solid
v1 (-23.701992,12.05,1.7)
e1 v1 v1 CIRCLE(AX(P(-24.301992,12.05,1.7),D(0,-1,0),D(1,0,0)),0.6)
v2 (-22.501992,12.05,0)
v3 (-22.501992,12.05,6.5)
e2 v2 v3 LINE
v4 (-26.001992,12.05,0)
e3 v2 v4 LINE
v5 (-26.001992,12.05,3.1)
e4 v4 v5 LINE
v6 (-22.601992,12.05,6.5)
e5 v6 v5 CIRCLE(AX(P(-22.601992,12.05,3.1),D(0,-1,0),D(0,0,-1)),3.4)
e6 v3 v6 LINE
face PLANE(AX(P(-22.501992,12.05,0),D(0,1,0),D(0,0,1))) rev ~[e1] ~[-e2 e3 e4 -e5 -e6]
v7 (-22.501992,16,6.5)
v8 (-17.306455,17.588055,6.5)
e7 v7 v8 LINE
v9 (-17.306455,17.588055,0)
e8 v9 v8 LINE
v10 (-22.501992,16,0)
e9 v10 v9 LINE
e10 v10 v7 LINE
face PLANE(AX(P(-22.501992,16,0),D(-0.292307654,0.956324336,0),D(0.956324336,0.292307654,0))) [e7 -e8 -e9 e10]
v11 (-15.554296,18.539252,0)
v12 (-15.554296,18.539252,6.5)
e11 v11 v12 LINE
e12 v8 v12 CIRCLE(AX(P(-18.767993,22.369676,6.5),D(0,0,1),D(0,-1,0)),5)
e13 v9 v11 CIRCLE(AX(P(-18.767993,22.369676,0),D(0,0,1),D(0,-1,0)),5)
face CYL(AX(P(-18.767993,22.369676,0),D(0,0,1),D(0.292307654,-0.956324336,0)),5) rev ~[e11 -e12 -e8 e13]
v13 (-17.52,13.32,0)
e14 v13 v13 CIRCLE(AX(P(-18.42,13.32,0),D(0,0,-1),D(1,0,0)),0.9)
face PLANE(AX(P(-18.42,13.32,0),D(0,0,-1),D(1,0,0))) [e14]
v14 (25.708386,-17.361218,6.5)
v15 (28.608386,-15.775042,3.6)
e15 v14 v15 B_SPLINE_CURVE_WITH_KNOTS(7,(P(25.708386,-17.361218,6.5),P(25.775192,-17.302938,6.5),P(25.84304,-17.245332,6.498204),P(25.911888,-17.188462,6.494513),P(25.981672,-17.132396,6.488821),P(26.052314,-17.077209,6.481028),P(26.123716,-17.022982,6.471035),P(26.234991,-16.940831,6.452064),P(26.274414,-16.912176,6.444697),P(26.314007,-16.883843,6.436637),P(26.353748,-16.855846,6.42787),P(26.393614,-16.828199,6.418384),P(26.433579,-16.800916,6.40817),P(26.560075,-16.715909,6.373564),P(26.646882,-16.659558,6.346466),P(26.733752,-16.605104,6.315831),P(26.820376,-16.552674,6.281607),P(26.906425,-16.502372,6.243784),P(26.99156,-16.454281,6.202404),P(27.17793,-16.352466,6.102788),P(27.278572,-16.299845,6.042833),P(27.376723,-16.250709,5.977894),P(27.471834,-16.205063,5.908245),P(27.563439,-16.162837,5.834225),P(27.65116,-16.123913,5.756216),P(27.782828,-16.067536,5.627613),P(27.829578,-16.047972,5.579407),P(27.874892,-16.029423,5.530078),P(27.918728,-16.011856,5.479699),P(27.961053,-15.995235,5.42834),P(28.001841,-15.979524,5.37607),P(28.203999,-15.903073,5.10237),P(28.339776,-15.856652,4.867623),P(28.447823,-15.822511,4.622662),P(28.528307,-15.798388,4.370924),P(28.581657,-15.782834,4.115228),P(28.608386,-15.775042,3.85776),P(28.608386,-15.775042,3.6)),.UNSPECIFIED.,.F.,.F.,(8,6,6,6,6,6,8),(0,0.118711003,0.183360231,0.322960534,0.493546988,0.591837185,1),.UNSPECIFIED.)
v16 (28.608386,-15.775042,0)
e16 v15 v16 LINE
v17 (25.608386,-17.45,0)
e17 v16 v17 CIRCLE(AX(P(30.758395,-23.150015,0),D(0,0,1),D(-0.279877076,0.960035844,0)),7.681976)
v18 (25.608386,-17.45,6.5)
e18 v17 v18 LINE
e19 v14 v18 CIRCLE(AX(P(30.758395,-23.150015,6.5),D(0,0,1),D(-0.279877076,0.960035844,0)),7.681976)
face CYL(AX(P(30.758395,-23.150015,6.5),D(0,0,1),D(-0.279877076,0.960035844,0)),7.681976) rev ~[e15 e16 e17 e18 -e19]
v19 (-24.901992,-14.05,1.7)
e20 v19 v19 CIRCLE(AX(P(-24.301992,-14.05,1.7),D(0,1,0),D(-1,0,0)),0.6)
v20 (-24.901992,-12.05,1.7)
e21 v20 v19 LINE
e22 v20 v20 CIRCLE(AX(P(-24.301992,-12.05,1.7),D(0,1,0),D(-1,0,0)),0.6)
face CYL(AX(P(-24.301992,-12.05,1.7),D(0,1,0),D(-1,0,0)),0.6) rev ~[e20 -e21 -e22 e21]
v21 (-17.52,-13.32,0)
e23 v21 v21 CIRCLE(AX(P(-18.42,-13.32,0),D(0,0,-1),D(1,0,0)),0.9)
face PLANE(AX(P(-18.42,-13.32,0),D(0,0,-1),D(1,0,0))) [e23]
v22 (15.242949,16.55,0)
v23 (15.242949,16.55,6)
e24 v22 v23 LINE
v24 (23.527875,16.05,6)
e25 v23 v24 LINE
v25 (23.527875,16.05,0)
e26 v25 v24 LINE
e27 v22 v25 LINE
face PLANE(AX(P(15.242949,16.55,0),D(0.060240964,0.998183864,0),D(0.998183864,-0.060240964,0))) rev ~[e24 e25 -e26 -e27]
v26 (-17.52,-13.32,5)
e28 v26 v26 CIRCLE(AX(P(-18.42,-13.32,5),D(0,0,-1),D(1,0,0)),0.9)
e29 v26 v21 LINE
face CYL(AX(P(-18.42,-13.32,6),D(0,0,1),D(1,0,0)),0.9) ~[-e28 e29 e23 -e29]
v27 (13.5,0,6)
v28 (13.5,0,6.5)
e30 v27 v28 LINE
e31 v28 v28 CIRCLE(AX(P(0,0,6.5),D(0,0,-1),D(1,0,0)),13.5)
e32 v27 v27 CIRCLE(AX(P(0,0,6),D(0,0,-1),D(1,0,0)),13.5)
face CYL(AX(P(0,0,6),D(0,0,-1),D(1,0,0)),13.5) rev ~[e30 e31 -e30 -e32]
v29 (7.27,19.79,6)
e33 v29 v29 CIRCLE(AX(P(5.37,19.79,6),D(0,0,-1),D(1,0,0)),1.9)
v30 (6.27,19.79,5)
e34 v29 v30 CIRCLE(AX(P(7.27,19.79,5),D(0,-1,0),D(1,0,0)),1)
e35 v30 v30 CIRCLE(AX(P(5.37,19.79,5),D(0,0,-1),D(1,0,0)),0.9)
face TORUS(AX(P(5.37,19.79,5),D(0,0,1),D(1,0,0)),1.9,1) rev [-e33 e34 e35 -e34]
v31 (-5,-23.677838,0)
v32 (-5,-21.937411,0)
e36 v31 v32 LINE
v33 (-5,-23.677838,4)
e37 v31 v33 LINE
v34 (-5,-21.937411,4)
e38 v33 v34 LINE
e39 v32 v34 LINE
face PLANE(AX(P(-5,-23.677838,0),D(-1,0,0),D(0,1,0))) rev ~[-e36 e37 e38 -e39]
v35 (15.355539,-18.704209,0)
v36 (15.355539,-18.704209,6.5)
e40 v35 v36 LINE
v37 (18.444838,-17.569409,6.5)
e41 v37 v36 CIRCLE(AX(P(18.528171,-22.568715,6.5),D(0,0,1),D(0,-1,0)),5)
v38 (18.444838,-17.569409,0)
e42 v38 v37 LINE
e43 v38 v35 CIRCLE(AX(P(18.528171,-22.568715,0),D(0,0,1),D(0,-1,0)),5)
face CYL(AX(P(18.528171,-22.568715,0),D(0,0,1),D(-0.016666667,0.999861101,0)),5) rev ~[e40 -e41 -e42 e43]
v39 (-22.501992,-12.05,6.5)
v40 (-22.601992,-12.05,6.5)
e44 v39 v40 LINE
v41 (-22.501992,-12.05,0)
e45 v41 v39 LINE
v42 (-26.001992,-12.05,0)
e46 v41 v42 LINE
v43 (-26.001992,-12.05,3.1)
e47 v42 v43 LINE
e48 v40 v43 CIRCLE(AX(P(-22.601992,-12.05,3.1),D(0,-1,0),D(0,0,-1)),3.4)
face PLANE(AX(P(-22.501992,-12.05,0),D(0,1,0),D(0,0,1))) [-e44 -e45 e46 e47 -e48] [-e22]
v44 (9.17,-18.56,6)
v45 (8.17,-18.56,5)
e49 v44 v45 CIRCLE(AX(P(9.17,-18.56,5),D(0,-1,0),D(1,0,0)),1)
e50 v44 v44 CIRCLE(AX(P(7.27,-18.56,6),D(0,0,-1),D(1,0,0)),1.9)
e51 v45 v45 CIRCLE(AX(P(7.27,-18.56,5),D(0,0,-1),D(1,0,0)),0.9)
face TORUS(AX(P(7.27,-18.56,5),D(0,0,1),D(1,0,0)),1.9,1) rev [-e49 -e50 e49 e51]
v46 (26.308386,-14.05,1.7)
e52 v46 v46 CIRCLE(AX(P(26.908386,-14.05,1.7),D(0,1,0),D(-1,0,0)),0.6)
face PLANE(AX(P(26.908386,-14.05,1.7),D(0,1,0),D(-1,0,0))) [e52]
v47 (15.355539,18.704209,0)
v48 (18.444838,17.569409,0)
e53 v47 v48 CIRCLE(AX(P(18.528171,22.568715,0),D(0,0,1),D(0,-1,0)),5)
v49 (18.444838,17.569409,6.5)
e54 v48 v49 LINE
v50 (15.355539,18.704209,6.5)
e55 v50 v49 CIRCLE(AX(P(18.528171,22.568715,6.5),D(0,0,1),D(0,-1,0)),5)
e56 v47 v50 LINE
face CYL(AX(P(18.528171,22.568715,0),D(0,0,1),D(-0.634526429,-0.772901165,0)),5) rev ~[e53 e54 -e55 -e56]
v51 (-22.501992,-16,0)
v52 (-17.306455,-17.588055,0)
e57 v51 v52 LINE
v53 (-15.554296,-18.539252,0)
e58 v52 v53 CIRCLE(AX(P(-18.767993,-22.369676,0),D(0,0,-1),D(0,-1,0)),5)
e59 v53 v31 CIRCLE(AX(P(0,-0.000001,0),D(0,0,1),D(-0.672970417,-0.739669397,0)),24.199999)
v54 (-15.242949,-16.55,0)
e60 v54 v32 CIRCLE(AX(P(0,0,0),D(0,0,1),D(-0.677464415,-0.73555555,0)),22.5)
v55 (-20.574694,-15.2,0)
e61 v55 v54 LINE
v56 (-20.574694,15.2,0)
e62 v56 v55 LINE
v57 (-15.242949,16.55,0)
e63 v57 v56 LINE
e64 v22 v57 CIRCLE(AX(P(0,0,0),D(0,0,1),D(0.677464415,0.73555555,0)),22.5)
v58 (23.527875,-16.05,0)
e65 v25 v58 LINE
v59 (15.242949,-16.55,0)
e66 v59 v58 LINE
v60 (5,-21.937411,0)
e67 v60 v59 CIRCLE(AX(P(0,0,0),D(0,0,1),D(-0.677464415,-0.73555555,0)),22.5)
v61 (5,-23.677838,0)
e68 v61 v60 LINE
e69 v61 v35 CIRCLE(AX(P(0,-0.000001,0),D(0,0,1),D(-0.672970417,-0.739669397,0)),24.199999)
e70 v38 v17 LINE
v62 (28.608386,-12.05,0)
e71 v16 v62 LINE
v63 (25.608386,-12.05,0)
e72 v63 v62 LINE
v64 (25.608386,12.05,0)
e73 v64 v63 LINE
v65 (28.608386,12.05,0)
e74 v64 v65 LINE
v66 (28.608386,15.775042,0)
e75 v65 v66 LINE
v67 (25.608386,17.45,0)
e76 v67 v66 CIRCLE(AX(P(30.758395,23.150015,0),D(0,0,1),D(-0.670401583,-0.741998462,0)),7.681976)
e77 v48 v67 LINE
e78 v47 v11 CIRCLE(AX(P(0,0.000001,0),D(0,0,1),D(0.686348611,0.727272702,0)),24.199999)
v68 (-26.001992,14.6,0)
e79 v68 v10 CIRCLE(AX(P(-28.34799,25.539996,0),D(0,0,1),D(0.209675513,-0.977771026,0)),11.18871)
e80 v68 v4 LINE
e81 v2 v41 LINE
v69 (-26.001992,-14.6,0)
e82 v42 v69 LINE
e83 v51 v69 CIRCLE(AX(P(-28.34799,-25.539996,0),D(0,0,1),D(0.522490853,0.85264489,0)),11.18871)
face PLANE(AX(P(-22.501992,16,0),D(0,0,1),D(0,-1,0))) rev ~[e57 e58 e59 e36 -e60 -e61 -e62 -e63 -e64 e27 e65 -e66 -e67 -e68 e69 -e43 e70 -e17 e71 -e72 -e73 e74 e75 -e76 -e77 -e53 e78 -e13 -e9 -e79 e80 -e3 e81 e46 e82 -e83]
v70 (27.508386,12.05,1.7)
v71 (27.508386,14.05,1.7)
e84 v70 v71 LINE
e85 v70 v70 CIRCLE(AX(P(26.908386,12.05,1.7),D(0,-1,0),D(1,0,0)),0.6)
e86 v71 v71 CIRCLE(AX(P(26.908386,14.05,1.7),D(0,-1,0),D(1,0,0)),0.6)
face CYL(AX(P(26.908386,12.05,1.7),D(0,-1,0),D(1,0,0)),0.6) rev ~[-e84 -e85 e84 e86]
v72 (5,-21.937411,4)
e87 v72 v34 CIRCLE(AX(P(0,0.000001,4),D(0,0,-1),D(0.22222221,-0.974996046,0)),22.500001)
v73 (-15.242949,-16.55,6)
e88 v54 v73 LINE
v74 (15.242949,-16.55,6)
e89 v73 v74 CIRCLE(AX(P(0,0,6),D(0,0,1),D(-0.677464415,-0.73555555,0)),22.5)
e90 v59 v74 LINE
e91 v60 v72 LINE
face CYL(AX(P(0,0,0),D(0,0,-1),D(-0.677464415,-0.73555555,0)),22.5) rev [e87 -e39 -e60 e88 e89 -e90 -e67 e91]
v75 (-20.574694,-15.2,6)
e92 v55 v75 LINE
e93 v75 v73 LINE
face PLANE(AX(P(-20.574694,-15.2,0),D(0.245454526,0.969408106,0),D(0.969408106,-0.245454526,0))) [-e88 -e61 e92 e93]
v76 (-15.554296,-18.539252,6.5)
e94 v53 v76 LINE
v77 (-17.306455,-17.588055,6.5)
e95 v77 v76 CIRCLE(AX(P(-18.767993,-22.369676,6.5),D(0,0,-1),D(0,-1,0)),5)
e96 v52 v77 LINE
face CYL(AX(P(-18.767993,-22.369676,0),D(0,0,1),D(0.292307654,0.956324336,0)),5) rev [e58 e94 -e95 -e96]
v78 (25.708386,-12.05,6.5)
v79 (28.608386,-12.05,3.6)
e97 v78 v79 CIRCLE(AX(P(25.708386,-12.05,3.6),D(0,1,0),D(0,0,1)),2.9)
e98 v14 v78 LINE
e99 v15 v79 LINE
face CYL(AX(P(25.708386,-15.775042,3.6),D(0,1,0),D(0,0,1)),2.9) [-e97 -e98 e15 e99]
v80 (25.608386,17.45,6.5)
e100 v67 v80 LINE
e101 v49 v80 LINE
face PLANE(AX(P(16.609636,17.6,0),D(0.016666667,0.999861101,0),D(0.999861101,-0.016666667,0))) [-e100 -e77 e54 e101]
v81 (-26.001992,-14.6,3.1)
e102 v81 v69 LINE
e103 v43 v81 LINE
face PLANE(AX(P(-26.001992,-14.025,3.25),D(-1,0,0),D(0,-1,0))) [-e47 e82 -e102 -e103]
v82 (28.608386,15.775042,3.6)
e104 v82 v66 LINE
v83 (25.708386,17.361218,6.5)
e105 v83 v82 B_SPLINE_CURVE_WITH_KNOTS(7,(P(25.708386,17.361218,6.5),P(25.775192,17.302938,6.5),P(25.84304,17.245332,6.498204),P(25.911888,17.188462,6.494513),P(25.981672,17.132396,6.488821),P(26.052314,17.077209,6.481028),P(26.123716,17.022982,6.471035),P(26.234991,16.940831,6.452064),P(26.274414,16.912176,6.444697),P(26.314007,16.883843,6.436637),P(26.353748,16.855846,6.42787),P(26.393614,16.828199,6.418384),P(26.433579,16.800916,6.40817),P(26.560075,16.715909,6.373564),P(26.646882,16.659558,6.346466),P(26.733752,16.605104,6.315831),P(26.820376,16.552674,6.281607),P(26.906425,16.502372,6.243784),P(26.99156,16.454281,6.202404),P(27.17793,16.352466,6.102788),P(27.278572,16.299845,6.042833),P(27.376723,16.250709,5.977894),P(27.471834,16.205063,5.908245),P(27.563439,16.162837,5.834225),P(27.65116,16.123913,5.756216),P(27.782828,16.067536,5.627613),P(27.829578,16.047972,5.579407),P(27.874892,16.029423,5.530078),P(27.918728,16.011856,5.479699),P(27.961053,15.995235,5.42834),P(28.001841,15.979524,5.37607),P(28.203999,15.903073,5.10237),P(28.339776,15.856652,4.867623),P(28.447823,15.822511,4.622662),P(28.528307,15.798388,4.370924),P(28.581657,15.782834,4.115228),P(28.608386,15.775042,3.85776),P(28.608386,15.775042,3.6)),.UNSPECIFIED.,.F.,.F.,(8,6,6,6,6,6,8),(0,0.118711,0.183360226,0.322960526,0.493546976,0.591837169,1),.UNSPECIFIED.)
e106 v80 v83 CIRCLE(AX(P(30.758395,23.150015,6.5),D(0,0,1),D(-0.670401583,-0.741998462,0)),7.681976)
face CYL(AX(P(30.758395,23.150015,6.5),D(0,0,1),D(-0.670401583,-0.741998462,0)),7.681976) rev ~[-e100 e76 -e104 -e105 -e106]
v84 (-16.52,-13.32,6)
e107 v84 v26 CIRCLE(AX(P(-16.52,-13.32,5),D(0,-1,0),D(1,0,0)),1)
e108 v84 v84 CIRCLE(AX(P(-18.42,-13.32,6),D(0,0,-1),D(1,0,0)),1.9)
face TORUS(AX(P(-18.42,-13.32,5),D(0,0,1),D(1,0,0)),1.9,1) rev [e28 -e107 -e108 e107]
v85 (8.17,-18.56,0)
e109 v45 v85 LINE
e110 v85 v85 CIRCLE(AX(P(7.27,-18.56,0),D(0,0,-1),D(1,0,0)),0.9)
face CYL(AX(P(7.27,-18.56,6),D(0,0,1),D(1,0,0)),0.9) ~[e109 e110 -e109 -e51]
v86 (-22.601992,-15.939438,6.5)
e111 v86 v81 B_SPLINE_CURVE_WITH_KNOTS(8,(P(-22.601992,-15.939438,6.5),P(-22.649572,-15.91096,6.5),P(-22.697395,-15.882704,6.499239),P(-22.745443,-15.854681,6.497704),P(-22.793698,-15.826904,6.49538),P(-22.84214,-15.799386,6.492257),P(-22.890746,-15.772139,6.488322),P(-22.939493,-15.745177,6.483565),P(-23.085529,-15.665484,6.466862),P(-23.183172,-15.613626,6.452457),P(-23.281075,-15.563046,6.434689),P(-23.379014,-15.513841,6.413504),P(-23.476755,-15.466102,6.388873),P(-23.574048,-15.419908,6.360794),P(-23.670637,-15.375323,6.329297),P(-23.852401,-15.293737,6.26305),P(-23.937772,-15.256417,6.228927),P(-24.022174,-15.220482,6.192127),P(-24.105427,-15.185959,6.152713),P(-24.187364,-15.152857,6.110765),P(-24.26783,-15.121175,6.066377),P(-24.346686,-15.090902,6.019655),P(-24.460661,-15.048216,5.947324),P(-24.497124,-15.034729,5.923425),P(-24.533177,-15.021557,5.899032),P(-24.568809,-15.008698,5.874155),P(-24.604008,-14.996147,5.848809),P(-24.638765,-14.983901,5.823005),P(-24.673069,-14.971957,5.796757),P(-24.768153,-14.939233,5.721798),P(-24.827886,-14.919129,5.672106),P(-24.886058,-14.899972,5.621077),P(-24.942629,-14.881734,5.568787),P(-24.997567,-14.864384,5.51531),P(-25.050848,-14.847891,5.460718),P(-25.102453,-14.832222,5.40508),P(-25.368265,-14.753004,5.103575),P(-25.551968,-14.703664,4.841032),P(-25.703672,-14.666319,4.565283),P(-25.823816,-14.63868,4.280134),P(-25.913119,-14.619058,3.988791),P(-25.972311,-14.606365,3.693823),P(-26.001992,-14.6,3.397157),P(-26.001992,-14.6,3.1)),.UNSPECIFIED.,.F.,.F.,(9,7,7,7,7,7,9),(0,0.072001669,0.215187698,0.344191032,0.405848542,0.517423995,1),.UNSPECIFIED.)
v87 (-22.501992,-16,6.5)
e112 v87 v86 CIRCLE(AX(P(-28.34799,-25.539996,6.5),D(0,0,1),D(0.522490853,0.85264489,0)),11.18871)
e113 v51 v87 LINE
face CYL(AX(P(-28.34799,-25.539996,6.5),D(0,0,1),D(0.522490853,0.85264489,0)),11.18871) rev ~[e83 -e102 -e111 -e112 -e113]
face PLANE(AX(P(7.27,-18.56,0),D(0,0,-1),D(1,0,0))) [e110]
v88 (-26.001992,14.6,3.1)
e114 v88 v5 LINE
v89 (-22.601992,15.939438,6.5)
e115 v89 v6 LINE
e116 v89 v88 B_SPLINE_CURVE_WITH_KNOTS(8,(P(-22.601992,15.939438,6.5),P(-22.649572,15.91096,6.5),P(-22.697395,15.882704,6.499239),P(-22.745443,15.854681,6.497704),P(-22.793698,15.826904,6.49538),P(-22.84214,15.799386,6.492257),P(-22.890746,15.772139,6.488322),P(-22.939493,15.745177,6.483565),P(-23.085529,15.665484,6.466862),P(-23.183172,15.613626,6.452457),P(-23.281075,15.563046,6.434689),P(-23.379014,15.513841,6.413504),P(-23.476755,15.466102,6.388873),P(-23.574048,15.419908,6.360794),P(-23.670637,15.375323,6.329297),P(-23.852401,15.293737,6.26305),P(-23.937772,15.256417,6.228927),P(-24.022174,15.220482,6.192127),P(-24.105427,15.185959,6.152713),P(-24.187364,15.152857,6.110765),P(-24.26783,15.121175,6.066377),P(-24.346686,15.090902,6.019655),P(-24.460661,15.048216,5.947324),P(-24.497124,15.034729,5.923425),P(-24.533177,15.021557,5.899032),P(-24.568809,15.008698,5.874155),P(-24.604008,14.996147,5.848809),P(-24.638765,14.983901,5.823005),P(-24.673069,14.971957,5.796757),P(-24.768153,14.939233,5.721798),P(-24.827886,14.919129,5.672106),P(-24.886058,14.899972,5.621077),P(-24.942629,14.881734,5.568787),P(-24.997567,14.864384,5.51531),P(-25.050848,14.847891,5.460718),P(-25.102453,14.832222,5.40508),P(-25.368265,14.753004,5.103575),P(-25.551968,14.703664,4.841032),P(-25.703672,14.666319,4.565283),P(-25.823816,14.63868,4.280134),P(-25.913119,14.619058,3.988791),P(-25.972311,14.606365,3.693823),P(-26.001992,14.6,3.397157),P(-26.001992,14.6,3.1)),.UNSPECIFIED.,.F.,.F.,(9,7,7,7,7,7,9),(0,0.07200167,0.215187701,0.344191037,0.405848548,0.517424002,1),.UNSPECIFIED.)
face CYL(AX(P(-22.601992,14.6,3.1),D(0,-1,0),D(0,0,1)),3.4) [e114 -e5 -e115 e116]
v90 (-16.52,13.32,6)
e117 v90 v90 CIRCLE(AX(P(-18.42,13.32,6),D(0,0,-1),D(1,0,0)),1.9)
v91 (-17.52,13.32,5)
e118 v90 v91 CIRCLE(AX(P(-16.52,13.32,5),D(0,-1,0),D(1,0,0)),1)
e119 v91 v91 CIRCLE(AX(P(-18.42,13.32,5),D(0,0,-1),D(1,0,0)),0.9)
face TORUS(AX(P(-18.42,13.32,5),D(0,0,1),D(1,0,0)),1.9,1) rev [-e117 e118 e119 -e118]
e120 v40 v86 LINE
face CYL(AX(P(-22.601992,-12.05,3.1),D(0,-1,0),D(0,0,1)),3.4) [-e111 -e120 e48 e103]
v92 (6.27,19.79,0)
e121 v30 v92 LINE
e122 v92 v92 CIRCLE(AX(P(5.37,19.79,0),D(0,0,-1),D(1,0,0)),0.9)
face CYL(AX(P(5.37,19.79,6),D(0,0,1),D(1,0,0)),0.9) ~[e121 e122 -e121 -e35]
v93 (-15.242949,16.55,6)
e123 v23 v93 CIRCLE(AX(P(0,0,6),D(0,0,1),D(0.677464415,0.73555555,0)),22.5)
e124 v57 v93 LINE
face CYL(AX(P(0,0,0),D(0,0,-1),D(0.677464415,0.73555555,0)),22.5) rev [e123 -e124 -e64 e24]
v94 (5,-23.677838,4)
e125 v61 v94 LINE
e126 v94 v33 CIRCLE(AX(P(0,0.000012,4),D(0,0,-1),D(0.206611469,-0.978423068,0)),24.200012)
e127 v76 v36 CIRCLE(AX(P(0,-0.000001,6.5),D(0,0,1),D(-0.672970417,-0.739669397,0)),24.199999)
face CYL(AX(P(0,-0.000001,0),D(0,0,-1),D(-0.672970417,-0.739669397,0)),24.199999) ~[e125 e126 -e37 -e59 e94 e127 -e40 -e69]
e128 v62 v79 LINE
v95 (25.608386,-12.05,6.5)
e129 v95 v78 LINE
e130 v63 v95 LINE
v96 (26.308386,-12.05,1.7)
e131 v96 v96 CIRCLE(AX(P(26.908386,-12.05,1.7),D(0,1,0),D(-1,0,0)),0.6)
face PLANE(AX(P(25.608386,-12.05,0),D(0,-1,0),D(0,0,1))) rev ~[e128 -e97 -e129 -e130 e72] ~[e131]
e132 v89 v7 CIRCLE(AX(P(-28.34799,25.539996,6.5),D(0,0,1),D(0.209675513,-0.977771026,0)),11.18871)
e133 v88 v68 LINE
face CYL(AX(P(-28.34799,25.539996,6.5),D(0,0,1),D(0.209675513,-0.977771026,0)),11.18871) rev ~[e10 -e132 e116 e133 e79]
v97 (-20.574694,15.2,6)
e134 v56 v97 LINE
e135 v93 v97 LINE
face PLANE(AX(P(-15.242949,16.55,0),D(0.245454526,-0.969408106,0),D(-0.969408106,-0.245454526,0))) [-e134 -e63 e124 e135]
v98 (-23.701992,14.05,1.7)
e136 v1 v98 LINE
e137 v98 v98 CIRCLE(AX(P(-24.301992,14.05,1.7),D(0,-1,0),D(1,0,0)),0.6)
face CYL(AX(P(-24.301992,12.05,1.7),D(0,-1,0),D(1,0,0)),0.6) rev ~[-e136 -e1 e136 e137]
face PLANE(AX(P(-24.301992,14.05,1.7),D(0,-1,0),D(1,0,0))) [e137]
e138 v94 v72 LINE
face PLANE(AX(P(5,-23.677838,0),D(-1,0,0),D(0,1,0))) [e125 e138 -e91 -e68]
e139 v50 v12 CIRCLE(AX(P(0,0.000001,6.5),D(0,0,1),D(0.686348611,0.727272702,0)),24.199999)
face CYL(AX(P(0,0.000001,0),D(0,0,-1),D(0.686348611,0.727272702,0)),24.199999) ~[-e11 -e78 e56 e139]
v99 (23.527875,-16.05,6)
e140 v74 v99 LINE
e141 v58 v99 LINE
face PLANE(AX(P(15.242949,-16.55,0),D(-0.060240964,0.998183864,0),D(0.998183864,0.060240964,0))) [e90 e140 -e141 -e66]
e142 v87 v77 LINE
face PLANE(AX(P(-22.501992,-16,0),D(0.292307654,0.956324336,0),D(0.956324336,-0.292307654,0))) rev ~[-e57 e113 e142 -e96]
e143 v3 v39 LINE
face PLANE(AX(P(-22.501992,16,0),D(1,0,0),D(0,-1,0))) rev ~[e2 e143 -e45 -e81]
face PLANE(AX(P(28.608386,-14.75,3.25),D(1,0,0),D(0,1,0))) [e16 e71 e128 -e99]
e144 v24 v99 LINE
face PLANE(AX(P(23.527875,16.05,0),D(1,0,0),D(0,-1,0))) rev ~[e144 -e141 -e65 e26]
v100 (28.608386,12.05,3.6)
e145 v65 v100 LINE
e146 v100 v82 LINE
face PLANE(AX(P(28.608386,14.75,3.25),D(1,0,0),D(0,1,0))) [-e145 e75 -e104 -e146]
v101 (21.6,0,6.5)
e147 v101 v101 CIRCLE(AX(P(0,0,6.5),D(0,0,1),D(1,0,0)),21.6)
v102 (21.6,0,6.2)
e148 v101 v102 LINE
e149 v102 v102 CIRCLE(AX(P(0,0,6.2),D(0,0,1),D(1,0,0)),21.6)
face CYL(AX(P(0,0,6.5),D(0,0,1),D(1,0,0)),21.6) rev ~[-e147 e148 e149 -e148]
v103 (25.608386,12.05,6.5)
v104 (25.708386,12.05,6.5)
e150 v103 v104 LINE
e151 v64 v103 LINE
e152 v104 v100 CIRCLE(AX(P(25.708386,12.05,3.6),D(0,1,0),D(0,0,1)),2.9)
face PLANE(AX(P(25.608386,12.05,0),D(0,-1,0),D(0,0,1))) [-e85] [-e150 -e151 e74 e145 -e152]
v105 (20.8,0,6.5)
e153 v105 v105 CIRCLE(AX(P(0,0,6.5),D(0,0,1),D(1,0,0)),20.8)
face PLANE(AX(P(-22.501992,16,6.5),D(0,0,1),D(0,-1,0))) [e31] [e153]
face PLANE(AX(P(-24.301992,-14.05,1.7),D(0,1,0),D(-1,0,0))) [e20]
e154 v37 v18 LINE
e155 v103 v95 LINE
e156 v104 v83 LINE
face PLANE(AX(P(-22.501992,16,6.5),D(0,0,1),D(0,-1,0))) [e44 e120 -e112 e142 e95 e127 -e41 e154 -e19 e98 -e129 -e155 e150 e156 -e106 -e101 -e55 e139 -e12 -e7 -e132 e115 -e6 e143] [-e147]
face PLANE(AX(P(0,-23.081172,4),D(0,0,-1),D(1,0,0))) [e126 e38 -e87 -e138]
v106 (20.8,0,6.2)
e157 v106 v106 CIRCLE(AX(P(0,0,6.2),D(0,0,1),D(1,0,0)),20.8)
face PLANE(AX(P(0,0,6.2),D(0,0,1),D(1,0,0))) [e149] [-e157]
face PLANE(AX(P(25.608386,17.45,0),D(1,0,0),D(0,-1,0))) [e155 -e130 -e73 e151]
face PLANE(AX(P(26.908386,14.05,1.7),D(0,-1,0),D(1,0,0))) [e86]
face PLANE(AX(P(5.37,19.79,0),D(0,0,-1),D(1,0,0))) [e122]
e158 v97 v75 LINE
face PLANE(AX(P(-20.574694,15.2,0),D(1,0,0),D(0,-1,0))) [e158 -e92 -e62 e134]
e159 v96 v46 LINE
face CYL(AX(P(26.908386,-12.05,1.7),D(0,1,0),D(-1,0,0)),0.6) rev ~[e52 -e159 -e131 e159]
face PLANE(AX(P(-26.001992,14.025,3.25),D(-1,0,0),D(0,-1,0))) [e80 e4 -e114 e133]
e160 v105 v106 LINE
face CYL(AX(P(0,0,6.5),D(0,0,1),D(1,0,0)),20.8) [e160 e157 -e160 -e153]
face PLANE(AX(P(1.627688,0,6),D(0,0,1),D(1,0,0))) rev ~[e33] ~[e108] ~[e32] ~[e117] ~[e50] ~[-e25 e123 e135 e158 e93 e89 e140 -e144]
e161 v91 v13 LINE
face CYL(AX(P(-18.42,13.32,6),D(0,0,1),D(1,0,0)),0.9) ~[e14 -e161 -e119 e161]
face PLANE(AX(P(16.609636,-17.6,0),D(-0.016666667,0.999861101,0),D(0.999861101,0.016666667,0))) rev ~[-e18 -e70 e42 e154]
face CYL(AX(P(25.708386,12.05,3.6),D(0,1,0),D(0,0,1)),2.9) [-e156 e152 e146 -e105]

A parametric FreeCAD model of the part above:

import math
import FreeCAD as App
import Part
import Sketcher


def edges_at(feature, points):
    """Names of the edges that pass closest to the given points."""
    edges = feature.Shape.Edges
    near = lambda p: min(range(len(edges)), key=lambda i: edges[i].distToShape(Part.Vertex(*p))[0])
    return sorted({f"Edge{near(p) + 1}" for p in points})

doc = App.newDocument("Part")
body = doc.addObject("PartDesign::Body", "Body")

# Sketch on XY plane
sketch1 = doc.addObject("Sketcher::SketchObject", "Sketch")
body.addObject(sketch1)
sketch1.AttachmentSupport = (doc.XY_Plane, [""])
sketch1.MapMode = "FlatFace"
sketch1.addGeometry([
    Part.LineSegment(App.Vector(-22.501992, 16, 0), App.Vector(-22.501992, -16, 0)),  # 0
    Part.LineSegment(App.Vector(-22.501992, -16, 0), App.Vector(-16.285883, -17.9, 0)),  # 1
    Part.ArcOfCircle(Part.Circle(App.Vector(0, -0.000001, 0), App.Vector(0, 0, 1), 24.199999), math.radians(-132.296739), math.radians(-46.65824)),  # 2
    Part.LineSegment(App.Vector(16.609636, -17.6, 0), App.Vector(25.608386, -17.45, 0)),  # 3
    Part.LineSegment(App.Vector(25.608386, -17.45, 0), App.Vector(25.608386, 17.45, 0)),  # 4
    Part.LineSegment(App.Vector(25.608386, 17.45, 0), App.Vector(16.609636, 17.6, 0)),  # 5
    Part.ArcOfCircle(Part.Circle(App.Vector(0, 0.000001, 0), App.Vector(0, 0, 1), 24.199999), math.radians(46.65824), math.radians(132.296739)),  # 6
    Part.LineSegment(App.Vector(-16.285883, 17.9, 0), App.Vector(-22.501992, 16, 0)),  # 7
], False)
sketch1.addConstraint([
    Sketcher.Constraint("Coincident", 0, 2, 1, 1),
    Sketcher.Constraint("Coincident", 1, 2, 2, 1),
    Sketcher.Constraint("Coincident", 2, 2, 3, 1),
    Sketcher.Constraint("Coincident", 3, 2, 4, 1),
    Sketcher.Constraint("Coincident", 4, 2, 5, 1),
    Sketcher.Constraint("Coincident", 5, 2, 6, 1),
    Sketcher.Constraint("Coincident", 6, 2, 7, 1),
    Sketcher.Constraint("Coincident", 7, 2, 0, 1),
    Sketcher.Constraint("Vertical", 0),
    Sketcher.Constraint("Vertical", 4),
    Sketcher.Constraint("Coincident", 2, 3, -1, 1),
    Sketcher.Constraint("Coincident", 6, 3, -1, 1),
    Sketcher.Constraint("Equal", 2, 6),
    Sketcher.Constraint("Vertical", 2, 2, 5, 2),
    Sketcher.Constraint("Vertical", 1, 2, 6, 2),
    Sketcher.Constraint("Equal", 3, 5),
    Sketcher.Constraint("Equal", 1, 7),
    Sketcher.Constraint("Radius", 2, 24.199999),
    Sketcher.Constraint("DistanceY", 0, 2, 0, 1, 32.0),
    Sketcher.Constraint("Distance", 3, 9.0),
    Sketcher.Constraint("DistanceY", 4, 1, 4, 2, 34.9),
    Sketcher.Constraint("Distance", 1, 6.500001),
    Sketcher.Constraint("DistanceY", 1, 2, -1, 1, 17.9),
    Sketcher.Constraint("DistanceY", 2, 2, -1, 1, 17.6),
])
pad1 = doc.addObject("PartDesign::Pad", "Pad")
body.addObject(pad1)
pad1.Profile = sketch1
pad1.Length = 6.5

# Sketch on XY plane
sketch2 = doc.addObject("Sketcher::SketchObject", "Sketch001")
body.addObject(sketch2)
sketch2.AttachmentSupport = (doc.XY_Plane, [""])
sketch2.MapMode = "FlatFace"
sketch2.addGeometry([
    Part.LineSegment(App.Vector(-15.242949, 16.55, 0), App.Vector(-20.574694, 15.2, 0)),  # 0
    Part.LineSegment(App.Vector(-20.574694, 15.2, 0), App.Vector(-20.574694, -15.2, 0)),  # 1
    Part.LineSegment(App.Vector(-20.574694, -15.2, 0), App.Vector(-15.242949, -16.55, 0)),  # 2
    Part.ArcOfCircle(Part.Circle(App.Vector(0, 0, 0), App.Vector(0, 0, 1), 22.5), math.radians(-132.64582), math.radians(-47.35418)),  # 3
    Part.LineSegment(App.Vector(15.242949, -16.55, 0), App.Vector(23.527875, -16.05, 0)),  # 4
    Part.LineSegment(App.Vector(23.527875, -16.05, 0), App.Vector(23.527875, 16.05, 0)),  # 5
    Part.LineSegment(App.Vector(23.527875, 16.05, 0), App.Vector(15.242949, 16.55, 0)),  # 6
    Part.ArcOfCircle(Part.Circle(App.Vector(0, 0, 0), App.Vector(0, 0, 1), 22.5), math.radians(47.35418), math.radians(132.64582)),  # 7
], False)
sketch2.addConstraint([
    Sketcher.Constraint("Coincident", 0, 2, 1, 1),
    Sketcher.Constraint("Coincident", 1, 2, 2, 1),
    Sketcher.Constraint("Coincident", 2, 2, 3, 1),
    Sketcher.Constraint("Coincident", 3, 2, 4, 1),
    Sketcher.Constraint("Coincident", 4, 2, 5, 1),
    Sketcher.Constraint("Coincident", 5, 2, 6, 1),
    Sketcher.Constraint("Coincident", 6, 2, 7, 1),
    Sketcher.Constraint("Coincident", 7, 2, 0, 1),
    Sketcher.Constraint("Vertical", 1),
    Sketcher.Constraint("Vertical", 5),
    Sketcher.Constraint("Coincident", 3, 3, -1, 1),
    Sketcher.Constraint("Coincident", 7, 3, -1, 1),
    Sketcher.Constraint("Equal", 3, 7),
    Sketcher.Constraint("Horizontal", 2, 2, 3, 2),
    Sketcher.Constraint("Horizontal", 6, 2, 7, 2),
    Sketcher.Constraint("Vertical", 3, 2, 6, 2),
    Sketcher.Constraint("Equal", 0, 2),
    Sketcher.Constraint("Equal", 4, 6),
    Sketcher.Constraint("Radius", 3, 22.5),
    Sketcher.Constraint("DistanceY", 1, 2, 1, 1, 30.4),
    Sketcher.Constraint("DistanceY", 5, 1, 5, 2, 32.1),
    Sketcher.Constraint("Distance", 0, 5.5),
    Sketcher.Constraint("Distance", 4, 8.3),
    Sketcher.Constraint("DistanceY", 3, 2, 4, 2, 0.5),
])
pocket1 = doc.addObject("PartDesign::Pocket", "Pocket")
body.addObject(pocket1)
pocket1.Profile = sketch2
pocket1.Length = 6
pocket1.Reversed = True

# Sketch on XY plane
sketch3 = doc.addObject("Sketcher::SketchObject", "Sketch002")
body.addObject(sketch3)
sketch3.AttachmentSupport = (doc.XY_Plane, [""])
sketch3.MapMode = "FlatFace"
sketch3.AttachmentOffset = App.Placement(App.Vector(0, 0, 6), App.Rotation())
sketch3.addGeometry(Part.Circle(App.Vector(0, 0, 0), App.Vector(0, 0, 1), 13.5), False)
sketch3.addConstraint([
    Sketcher.Constraint("Coincident", 0, 3, -1, 1),
    Sketcher.Constraint("Diameter", 0, 27.0),
])
pocket2 = doc.addObject("PartDesign::Pocket", "Pocket001")
body.addObject(pocket2)
pocket2.Profile = sketch3
pocket2.Length = 1
pocket2.Reversed = True

# Sketch on YZ plane
sketch4 = doc.addObject("Sketcher::SketchObject", "Sketch003")
body.addObject(sketch4)
sketch4.AttachmentSupport = (doc.YZ_Plane, [""])
sketch4.MapMode = "FlatFace"
sketch4.AttachmentOffset = App.Placement(App.Vector(0, 0, 25.608386), App.Rotation())
sketch4.addGeometry([
    Part.LineSegment(App.Vector(-17.45, 6.5, 0), App.Vector(-17.45, 0, 0)),  # 0
    Part.LineSegment(App.Vector(-17.45, 0, 0), App.Vector(-12.05, 0, 0)),  # 1
    Part.LineSegment(App.Vector(-12.05, 0, 0), App.Vector(-12.05, 6.5, 0)),  # 2
    Part.LineSegment(App.Vector(-12.05, 6.5, 0), App.Vector(-17.45, 6.5, 0)),  # 3
    Part.LineSegment(App.Vector(12.05, 6.5, 0), App.Vector(12.05, 0, 0)),  # 4
    Part.LineSegment(App.Vector(12.05, 0, 0), App.Vector(17.45, 0, 0)),  # 5
    Part.LineSegment(App.Vector(17.45, 0, 0), App.Vector(17.45, 6.5, 0)),  # 6
    Part.LineSegment(App.Vector(17.45, 6.5, 0), App.Vector(12.05, 6.5, 0)),  # 7
], False)
sketch4.addConstraint([
    Sketcher.Constraint("Coincident", 0, 2, 1, 1),
    Sketcher.Constraint("Coincident", 1, 2, 2, 1),
    Sketcher.Constraint("Coincident", 2, 2, 3, 1),
    Sketcher.Constraint("Coincident", 3, 2, 0, 1),
    Sketcher.Constraint("Coincident", 4, 2, 5, 1),
    Sketcher.Constraint("Coincident", 5, 2, 6, 1),
    Sketcher.Constraint("Coincident", 6, 2, 7, 1),
    Sketcher.Constraint("Coincident", 7, 2, 4, 1),
    Sketcher.Constraint("Vertical", 0),
    Sketcher.Constraint("Horizontal", 1),
    Sketcher.Constraint("Vertical", 2),
    Sketcher.Constraint("Horizontal", 3),
    Sketcher.Constraint("Vertical", 4),
    Sketcher.Constraint("Horizontal", 5),
    Sketcher.Constraint("Vertical", 6),
    Sketcher.Constraint("Horizontal", 7),
    Sketcher.Constraint("Symmetric", 1, 2, 4, 2, -1, 1),
    Sketcher.Constraint("Symmetric", 0, 2, 5, 2, -2),
    Sketcher.Constraint("Horizontal", 3, 2, 6, 2),
    Sketcher.Constraint("DistanceX", 1, 1, 1, 2, 5.4),
    Sketcher.Constraint("DistanceY", 0, 2, 0, 1, 6.5),
    Sketcher.Constraint("DistanceX", 1, 2, 4, 2, 24.1),
])
pad2 = doc.addObject("PartDesign::Pad", "Pad001")
body.addObject(pad2)
pad2.Profile = sketch4
pad2.Length = 3

# Sketch on XY plane
sketch5 = doc.addObject("Sketcher::SketchObject", "Sketch004")
body.addObject(sketch5)
sketch5.AttachmentSupport = (doc.XY_Plane, [""])
sketch5.MapMode = "FlatFace"
sketch5.AttachmentOffset = App.Placement(App.Vector(0, 0, 6.5), App.Rotation())
sketch5.addGeometry([
    Part.ArcOfCircle(Part.Circle(App.Vector(30.758395, 23.150015, 0), App.Vector(0, 0, 1), 7.681976), math.radians(-132.098067), math.radians(-106.252868)),  # 0
    Part.LineSegment(App.Vector(28.608386, 15.775042, 0), App.Vector(28.608386, 17.45, 0)),  # 1
    Part.LineSegment(App.Vector(28.608386, 17.45, 0), App.Vector(25.608386, 17.45, 0)),  # 2
    Part.ArcOfCircle(Part.Circle(App.Vector(30.758395, -23.150015, 0), App.Vector(0, 0, 1), 7.681976), math.radians(106.252868), math.radians(132.098067)),  # 3
    Part.LineSegment(App.Vector(25.608386, -17.45, 0), App.Vector(28.608386, -17.45, 0)),  # 4
    Part.LineSegment(App.Vector(28.608386, -17.45, 0), App.Vector(28.608386, -15.775042, 0)),  # 5
], False)
sketch5.addConstraint([
    Sketcher.Constraint("Coincident", 0, 2, 1, 1),
    Sketcher.Constraint("Coincident", 1, 2, 2, 1),
    Sketcher.Constraint("Coincident", 2, 2, 0, 1),
    Sketcher.Constraint("Coincident", 3, 2, 4, 1),
    Sketcher.Constraint("Coincident", 4, 2, 5, 1),
    Sketcher.Constraint("Coincident", 5, 2, 3, 1),
    Sketcher.Constraint("Vertical", 1),
    Sketcher.Constraint("Horizontal", 2),
    Sketcher.Constraint("Horizontal", 4),
    Sketcher.Constraint("Vertical", 5),
    Sketcher.Constraint("Equal", 0, 3),
    Sketcher.Constraint("Symmetric", 0, 3, 3, 3, -1),
    Sketcher.Constraint("Symmetric", 1, 2, 4, 2, -1),
    Sketcher.Constraint("DistanceX", 2, 2, 2, 1, 3.0),
    Sketcher.Constraint("DistanceY", 3, 2, 2, 2, 34.9),
    Sketcher.Constraint("Radius", 0, 7.681976),
    Sketcher.Constraint("DistanceY", 1, 1, 1, 2, 1.674958),
    Sketcher.Constraint("DistanceX", -1, 1, 0, 3, 30.758395),
])
pocket3 = doc.addObject("PartDesign::Pocket", "Pocket002")
body.addObject(pocket3)
pocket3.Profile = sketch5
pocket3.Length = 10

# Sketch on XZ plane
sketch6 = doc.addObject("Sketcher::SketchObject", "Sketch005")
body.addObject(sketch6)
sketch6.AttachmentSupport = (doc.XZ_Plane, [""])
sketch6.MapMode = "FlatFace"
sketch6.AttachmentOffset = App.Placement(App.Vector(0, 0, 12.05), App.Rotation())
sketch6.addGeometry(Part.Circle(App.Vector(26.908386, 1.7, 0), App.Vector(0, 0, 1), 0.6), False)
sketch6.addConstraint([
    Sketcher.Constraint("Diameter", 0, 1.2),
    Sketcher.Constraint("DistanceY", -1, 1, 0, 3, 1.7),
    Sketcher.Constraint("DistanceX", -1, 1, 0, 3, 26.908386),
])
pocket4 = doc.addObject("PartDesign::Pocket", "Pocket003")
body.addObject(pocket4)
pocket4.Profile = sketch6
pocket4.Length = 2
pocket4.Reversed = True

# Sketch on XZ plane
sketch7 = doc.addObject("Sketcher::SketchObject", "Sketch006")
body.addObject(sketch7)
sketch7.AttachmentSupport = (doc.XZ_Plane, [""])
sketch7.MapMode = "FlatFace"
sketch7.AttachmentOffset = App.Placement(App.Vector(0, 0, -12.05), App.Rotation())
sketch7.addGeometry(Part.Circle(App.Vector(26.908386, 1.7, 0), App.Vector(0, 0, 1), 0.6), False)
sketch7.addConstraint([
    Sketcher.Constraint("Diameter", 0, 1.2),
    Sketcher.Constraint("DistanceY", -1, 1, 0, 3, 1.7),
    Sketcher.Constraint("DistanceX", -1, 1, 0, 3, 26.908386),
])
pocket5 = doc.addObject("PartDesign::Pocket", "Pocket004")
body.addObject(pocket5)
pocket5.Profile = sketch7
pocket5.Length = 2
doc.recompute()

fillet = doc.addObject("PartDesign::Fillet", "Fillet")
body.addObject(fillet)
fillet.Base = (pocket5, edges_at(pocket5, [(28.608, -13.913, 6.5)]))
fillet.Radius = 2.9
doc.recompute()

fillet2 = doc.addObject("PartDesign::Fillet", "Fillet001")
body.addObject(fillet2)
fillet2.Base = (fillet, edges_at(fillet, [(28.608, 13.913, 6.5)]))
fillet2.Radius = 2.9
doc.recompute()

fillet3 = doc.addObject("PartDesign::Fillet", "Fillet002")
body.addObject(fillet3)
fillet3.Base = (fillet2, edges_at(fillet2, [(16.61, -17.6, 3.25)]))
fillet3.Radius = 5
doc.recompute()

fillet4 = doc.addObject("PartDesign::Fillet", "Fillet003")
body.addObject(fillet4)
fillet4.Base = (fillet3, edges_at(fillet3, [(16.61, 17.6, 3.25)]))
fillet4.Radius = 5
doc.recompute()

fillet5 = doc.addObject("PartDesign::Fillet", "Fillet004")
body.addObject(fillet5)
fillet5.Base = (fillet4, edges_at(fillet4, [(-16.286, -17.9, 3.25)]))
fillet5.Radius = 5
doc.recompute()

fillet6 = doc.addObject("PartDesign::Fillet", "Fillet005")
body.addObject(fillet6)
fillet6.Base = (fillet5, edges_at(fillet5, [(-16.286, 17.9, 3.25)]))
fillet6.Radius = 5

# Sketch on YZ plane
sketch8 = doc.addObject("Sketcher::SketchObject", "Sketch007")
body.addObject(sketch8)
sketch8.AttachmentSupport = (doc.YZ_Plane, [""])
sketch8.MapMode = "FlatFace"
sketch8.AttachmentOffset = App.Placement(App.Vector(0, 0, -22.501992), App.Rotation())
sketch8.addGeometry([
    Part.LineSegment(App.Vector(16, 6.5, 0), App.Vector(16, 0, 0)),  # 0
    Part.LineSegment(App.Vector(16, 0, 0), App.Vector(12.05, 0, 0)),  # 1
    Part.LineSegment(App.Vector(12.05, 0, 0), App.Vector(12.05, 6.5, 0)),  # 2
    Part.LineSegment(App.Vector(12.05, 6.5, 0), App.Vector(16, 6.5, 0)),  # 3
    Part.LineSegment(App.Vector(-12.05, 6.5, 0), App.Vector(-12.05, 0, 0)),  # 4
    Part.LineSegment(App.Vector(-12.05, 0, 0), App.Vector(-16, 0, 0)),  # 5
    Part.LineSegment(App.Vector(-16, 0, 0), App.Vector(-16, 6.5, 0)),  # 6
    Part.LineSegment(App.Vector(-16, 6.5, 0), App.Vector(-12.05, 6.5, 0)),  # 7
], False)
sketch8.addConstraint([
    Sketcher.Constraint("Coincident", 0, 2, 1, 1),
    Sketcher.Constraint("Coincident", 1, 2, 2, 1),
    Sketcher.Constraint("Coincident", 2, 2, 3, 1),
    Sketcher.Constraint("Coincident", 3, 2, 0, 1),
    Sketcher.Constraint("Coincident", 4, 2, 5, 1),
    Sketcher.Constraint("Coincident", 5, 2, 6, 1),
    Sketcher.Constraint("Coincident", 6, 2, 7, 1),
    Sketcher.Constraint("Coincident", 7, 2, 4, 1),
    Sketcher.Constraint("Vertical", 0),
    Sketcher.Constraint("Horizontal", 1),
    Sketcher.Constraint("Vertical", 2),
    Sketcher.Constraint("Horizontal", 3),
    Sketcher.Constraint("Vertical", 4),
    Sketcher.Constraint("Horizontal", 5),
    Sketcher.Constraint("Vertical", 6),
    Sketcher.Constraint("Horizontal", 7),
    Sketcher.Constraint("Symmetric", 1, 2, 4, 2, -1, 1),
    Sketcher.Constraint("Symmetric", 0, 2, 5, 2, -2),
    Sketcher.Constraint("Horizontal", 3, 2, 6, 2),
    Sketcher.Constraint("DistanceY", 0, 2, 0, 1, 6.5),
    Sketcher.Constraint("DistanceX", -1, 1, 0, 2, 16.0),
    Sketcher.Constraint("DistanceX", 1, 2, 1, 1, 3.95),
])
pad3 = doc.addObject("PartDesign::Pad", "Pad002")
body.addObject(pad3)
pad3.Profile = sketch8
pad3.Length = 3.5
pad3.Reversed = True

# Sketch on XY plane
sketch9 = doc.addObject("Sketcher::SketchObject", "Sketch008")
body.addObject(sketch9)
sketch9.AttachmentSupport = (doc.XY_Plane, [""])
sketch9.MapMode = "FlatFace"
sketch9.AttachmentOffset = App.Placement(App.Vector(0, 0, 6.5), App.Rotation())
sketch9.addGeometry([
    Part.ArcOfCircle(Part.Circle(App.Vector(-28.34799, 25.539996, 0), App.Vector(0, 0, 1), 11.18871), math.radians(-77.896663), math.radians(-58.500518)),  # 0
    Part.LineSegment(App.Vector(-22.501992, 16, 0), App.Vector(-26.001992, 16, 0)),  # 1
    Part.LineSegment(App.Vector(-26.001992, 16, 0), App.Vector(-26.001992, 14.6, 0)),  # 2
    Part.ArcOfCircle(Part.Circle(App.Vector(-28.34799, -25.539996, 0), App.Vector(0, 0, 1), 11.18871), math.radians(58.500518), math.radians(77.896663)),  # 3
    Part.LineSegment(App.Vector(-26.001992, -14.6, 0), App.Vector(-26.001992, -16, 0)),  # 4
    Part.LineSegment(App.Vector(-26.001992, -16, 0), App.Vector(-22.501992, -16, 0)),  # 5
], False)
sketch9.addConstraint([
    Sketcher.Constraint("Coincident", 0, 2, 1, 1),
    Sketcher.Constraint("Coincident", 1, 2, 2, 1),
    Sketcher.Constraint("Coincident", 2, 2, 0, 1),
    Sketcher.Constraint("Coincident", 3, 2, 4, 1),
    Sketcher.Constraint("Coincident", 4, 2, 5, 1),
    Sketcher.Constraint("Coincident", 5, 2, 3, 1),
    Sketcher.Constraint("Horizontal", 1),
    Sketcher.Constraint("Vertical", 2),
    Sketcher.Constraint("Vertical", 4),
    Sketcher.Constraint("Horizontal", 5),
    Sketcher.Constraint("Equal", 0, 3),
    Sketcher.Constraint("Symmetric", 0, 3, 3, 3, -1),
    Sketcher.Constraint("Symmetric", 1, 2, 4, 2, -1),
    Sketcher.Constraint("DistanceX", 1, 2, 1, 1, 3.5),
    Sketcher.Constraint("DistanceY", 2, 2, 2, 1, 1.4),
    Sketcher.Constraint("DistanceY", -1, 1, 0, 2, 16.0),
    Sketcher.Constraint("Radius", 0, 11.18871),
    Sketcher.Constraint("DistanceX", 0, 3, -1, 1, 28.34799),
])
pocket6 = doc.addObject("PartDesign::Pocket", "Pocket005")
body.addObject(pocket6)
pocket6.Profile = sketch9
pocket6.Length = 10

# Sketch on XZ plane
sketch10 = doc.addObject("Sketcher::SketchObject", "Sketch009")
body.addObject(sketch10)
sketch10.AttachmentSupport = (doc.XZ_Plane, [""])
sketch10.MapMode = "FlatFace"
sketch10.AttachmentOffset = App.Placement(App.Vector(0, 0, 12.05), App.Rotation())
sketch10.addGeometry(Part.Circle(App.Vector(-24.301992, 1.7, 0), App.Vector(0, 0, 1), 0.6), False)
sketch10.addConstraint([
    Sketcher.Constraint("Diameter", 0, 1.2),
    Sketcher.Constraint("DistanceY", -1, 1, 0, 3, 1.7),
    Sketcher.Constraint("DistanceX", 0, 3, -1, 1, 24.301992),
])
pocket7 = doc.addObject("PartDesign::Pocket", "Pocket006")
body.addObject(pocket7)
pocket7.Profile = sketch10
pocket7.Length = 2
pocket7.Reversed = True

# Sketch on XZ plane
sketch11 = doc.addObject("Sketcher::SketchObject", "Sketch010")
body.addObject(sketch11)
sketch11.AttachmentSupport = (doc.XZ_Plane, [""])
sketch11.MapMode = "FlatFace"
sketch11.AttachmentOffset = App.Placement(App.Vector(0, 0, -12.05), App.Rotation())
sketch11.addGeometry(Part.Circle(App.Vector(-24.301992, 1.7, 0), App.Vector(0, 0, 1), 0.6), False)
sketch11.addConstraint([
    Sketcher.Constraint("Diameter", 0, 1.2),
    Sketcher.Constraint("DistanceY", -1, 1, 0, 3, 1.7),
    Sketcher.Constraint("DistanceX", 0, 3, -1, 1, 24.301992),
])
pocket8 = doc.addObject("PartDesign::Pocket", "Pocket007")
body.addObject(pocket8)
pocket8.Profile = sketch11
pocket8.Length = 2
doc.recompute()

fillet7 = doc.addObject("PartDesign::Fillet", "Fillet006")
body.addObject(fillet7)
fillet7.Base = (pocket8, edges_at(pocket8, [(-26.002, 13.325, 6.5)]))
fillet7.Radius = 3.4
doc.recompute()

fillet8 = doc.addObject("PartDesign::Fillet", "Fillet007")
body.addObject(fillet8)
fillet8.Base = (fillet7, edges_at(fillet7, [(-26.002, -13.325, 6.5)]))
fillet8.Radius = 3.4

# Sketch on XY plane
sketch12 = doc.addObject("Sketcher::SketchObject", "Sketch011")
body.addObject(sketch12)
sketch12.AttachmentSupport = (doc.XY_Plane, [""])
sketch12.MapMode = "FlatFace"
sketch12.AttachmentOffset = App.Placement(App.Vector(0, 0, 6.5), App.Rotation())
sketch12.addGeometry([
    Part.Circle(App.Vector(0, 0, 0), App.Vector(0, 0, 1), 21.6),
    Part.Circle(App.Vector(0, 0, 0), App.Vector(0, 0, 1), 20.8),
], False)
sketch12.addConstraint([
    Sketcher.Constraint("Coincident", 0, 3, -1, 1),
    Sketcher.Constraint("Coincident", 1, 3, -1, 1),
    Sketcher.Constraint("Diameter", 0, 43.2),
    Sketcher.Constraint("Diameter", 1, 41.6),
])
pocket9 = doc.addObject("PartDesign::Pocket", "Pocket008")
body.addObject(pocket9)
pocket9.Profile = sketch12
pocket9.Length = 0.3

# Sketch on XY plane
sketch13 = doc.addObject("Sketcher::SketchObject", "Sketch012")
body.addObject(sketch13)
sketch13.AttachmentSupport = (doc.XY_Plane, [""])
sketch13.MapMode = "FlatFace"
sketch13.AttachmentOffset = App.Placement(App.Vector(0, 0, 6), App.Rotation())
sketch13.addGeometry([
    Part.Circle(App.Vector(-18.42, -13.32, 0), App.Vector(0, 0, 1), 0.9),
    Part.Circle(App.Vector(-18.42, 13.32, 0), App.Vector(0, 0, 1), 0.9),
    Part.Circle(App.Vector(7.27, -18.56, 0), App.Vector(0, 0, 1), 0.9),
    Part.Circle(App.Vector(5.37, 19.79, 0), App.Vector(0, 0, 1), 0.9),
], False)
sketch13.addConstraint([
    Sketcher.Constraint("Equal", 0, 1),
    Sketcher.Constraint("Equal", 1, 2),
    Sketcher.Constraint("Equal", 2, 3),
    Sketcher.Constraint("Symmetric", 0, 3, 1, 3, -1),
    Sketcher.Constraint("Diameter", 0, 1.8),
    Sketcher.Constraint("DistanceX", 3, 3, 2, 3, 1.9),
    Sketcher.Constraint("DistanceX", 0, 3, -1, 1, 18.42),
    Sketcher.Constraint("DistanceY", 0, 3, -1, 1, 13.32),
    Sketcher.Constraint("DistanceX", -1, 1, 2, 3, 7.27),
    Sketcher.Constraint("DistanceY", 2, 3, -1, 1, 18.56),
    Sketcher.Constraint("DistanceY", -1, 1, 3, 3, 19.79),
])
pad4 = doc.addObject("PartDesign::Pad", "Pad003")
body.addObject(pad4)
pad4.Profile = sketch13
pad4.Length = 6
pad4.Reversed = True
doc.recompute()

fillet9 = doc.addObject("PartDesign::Fillet", "Fillet008")
body.addObject(fillet9)
fillet9.Base = (pad4, edges_at(pad4, [
    (-19.32, -13.32, 6),
    (6.37, -18.56, 6),
    (-19.32, 13.32, 6),
    (4.47, 19.79, 6),
]))
fillet9.Radius = 1

# Sketch on XY plane
sketch14 = doc.addObject("Sketcher::SketchObject", "Sketch013")
body.addObject(sketch14)
sketch14.AttachmentSupport = (doc.XY_Plane, [""])
sketch14.MapMode = "FlatFace"
sketch14.addGeometry([
    Part.LineSegment(App.Vector(-5, -23.677838, 0), App.Vector(-5, -21.937411, 0)),
    Part.ArcOfCircle(Part.Circle(App.Vector(0, 0.000001, 0), App.Vector(0, 0, 1), 22.500001), math.radians(-102.839588), math.radians(-77.160412)),
    Part.LineSegment(App.Vector(5, -21.937411, 0), App.Vector(5, -23.677838, 0)),
    Part.ArcOfCircle(Part.Circle(App.Vector(0, 0.000012, 0), App.Vector(0, 0, 1), 24.200012), math.radians(-101.923849), math.radians(-78.076151)),
], False)
sketch14.addConstraint([
    Sketcher.Constraint("Coincident", 0, 2, 1, 1),
    Sketcher.Constraint("Coincident", 1, 2, 2, 1),
    Sketcher.Constraint("Coincident", 2, 2, 3, 2),
    Sketcher.Constraint("Coincident", 3, 1, 0, 1),
    Sketcher.Constraint("Vertical", 0),
    Sketcher.Constraint("Vertical", 2),
    Sketcher.Constraint("Coincident", 1, 3, -1, 1),
    Sketcher.Constraint("Symmetric", 2, 2, 3, 1, -2),
    Sketcher.Constraint("Radius", 1, 22.500001),
    Sketcher.Constraint("DistanceX", 0, 2, -1, 1, 5.0),
    Sketcher.Constraint("Radius", 3, 24.200012),
    Sketcher.Constraint("DistanceY", 0, 1, 0, 2, 1.740427),
])
pocket10 = doc.addObject("PartDesign::Pocket", "Pocket009")
body.addObject(pocket10)
pocket10.Profile = sketch14
pocket10.Length = 4
pocket10.Reversed = True

doc.recompute()
